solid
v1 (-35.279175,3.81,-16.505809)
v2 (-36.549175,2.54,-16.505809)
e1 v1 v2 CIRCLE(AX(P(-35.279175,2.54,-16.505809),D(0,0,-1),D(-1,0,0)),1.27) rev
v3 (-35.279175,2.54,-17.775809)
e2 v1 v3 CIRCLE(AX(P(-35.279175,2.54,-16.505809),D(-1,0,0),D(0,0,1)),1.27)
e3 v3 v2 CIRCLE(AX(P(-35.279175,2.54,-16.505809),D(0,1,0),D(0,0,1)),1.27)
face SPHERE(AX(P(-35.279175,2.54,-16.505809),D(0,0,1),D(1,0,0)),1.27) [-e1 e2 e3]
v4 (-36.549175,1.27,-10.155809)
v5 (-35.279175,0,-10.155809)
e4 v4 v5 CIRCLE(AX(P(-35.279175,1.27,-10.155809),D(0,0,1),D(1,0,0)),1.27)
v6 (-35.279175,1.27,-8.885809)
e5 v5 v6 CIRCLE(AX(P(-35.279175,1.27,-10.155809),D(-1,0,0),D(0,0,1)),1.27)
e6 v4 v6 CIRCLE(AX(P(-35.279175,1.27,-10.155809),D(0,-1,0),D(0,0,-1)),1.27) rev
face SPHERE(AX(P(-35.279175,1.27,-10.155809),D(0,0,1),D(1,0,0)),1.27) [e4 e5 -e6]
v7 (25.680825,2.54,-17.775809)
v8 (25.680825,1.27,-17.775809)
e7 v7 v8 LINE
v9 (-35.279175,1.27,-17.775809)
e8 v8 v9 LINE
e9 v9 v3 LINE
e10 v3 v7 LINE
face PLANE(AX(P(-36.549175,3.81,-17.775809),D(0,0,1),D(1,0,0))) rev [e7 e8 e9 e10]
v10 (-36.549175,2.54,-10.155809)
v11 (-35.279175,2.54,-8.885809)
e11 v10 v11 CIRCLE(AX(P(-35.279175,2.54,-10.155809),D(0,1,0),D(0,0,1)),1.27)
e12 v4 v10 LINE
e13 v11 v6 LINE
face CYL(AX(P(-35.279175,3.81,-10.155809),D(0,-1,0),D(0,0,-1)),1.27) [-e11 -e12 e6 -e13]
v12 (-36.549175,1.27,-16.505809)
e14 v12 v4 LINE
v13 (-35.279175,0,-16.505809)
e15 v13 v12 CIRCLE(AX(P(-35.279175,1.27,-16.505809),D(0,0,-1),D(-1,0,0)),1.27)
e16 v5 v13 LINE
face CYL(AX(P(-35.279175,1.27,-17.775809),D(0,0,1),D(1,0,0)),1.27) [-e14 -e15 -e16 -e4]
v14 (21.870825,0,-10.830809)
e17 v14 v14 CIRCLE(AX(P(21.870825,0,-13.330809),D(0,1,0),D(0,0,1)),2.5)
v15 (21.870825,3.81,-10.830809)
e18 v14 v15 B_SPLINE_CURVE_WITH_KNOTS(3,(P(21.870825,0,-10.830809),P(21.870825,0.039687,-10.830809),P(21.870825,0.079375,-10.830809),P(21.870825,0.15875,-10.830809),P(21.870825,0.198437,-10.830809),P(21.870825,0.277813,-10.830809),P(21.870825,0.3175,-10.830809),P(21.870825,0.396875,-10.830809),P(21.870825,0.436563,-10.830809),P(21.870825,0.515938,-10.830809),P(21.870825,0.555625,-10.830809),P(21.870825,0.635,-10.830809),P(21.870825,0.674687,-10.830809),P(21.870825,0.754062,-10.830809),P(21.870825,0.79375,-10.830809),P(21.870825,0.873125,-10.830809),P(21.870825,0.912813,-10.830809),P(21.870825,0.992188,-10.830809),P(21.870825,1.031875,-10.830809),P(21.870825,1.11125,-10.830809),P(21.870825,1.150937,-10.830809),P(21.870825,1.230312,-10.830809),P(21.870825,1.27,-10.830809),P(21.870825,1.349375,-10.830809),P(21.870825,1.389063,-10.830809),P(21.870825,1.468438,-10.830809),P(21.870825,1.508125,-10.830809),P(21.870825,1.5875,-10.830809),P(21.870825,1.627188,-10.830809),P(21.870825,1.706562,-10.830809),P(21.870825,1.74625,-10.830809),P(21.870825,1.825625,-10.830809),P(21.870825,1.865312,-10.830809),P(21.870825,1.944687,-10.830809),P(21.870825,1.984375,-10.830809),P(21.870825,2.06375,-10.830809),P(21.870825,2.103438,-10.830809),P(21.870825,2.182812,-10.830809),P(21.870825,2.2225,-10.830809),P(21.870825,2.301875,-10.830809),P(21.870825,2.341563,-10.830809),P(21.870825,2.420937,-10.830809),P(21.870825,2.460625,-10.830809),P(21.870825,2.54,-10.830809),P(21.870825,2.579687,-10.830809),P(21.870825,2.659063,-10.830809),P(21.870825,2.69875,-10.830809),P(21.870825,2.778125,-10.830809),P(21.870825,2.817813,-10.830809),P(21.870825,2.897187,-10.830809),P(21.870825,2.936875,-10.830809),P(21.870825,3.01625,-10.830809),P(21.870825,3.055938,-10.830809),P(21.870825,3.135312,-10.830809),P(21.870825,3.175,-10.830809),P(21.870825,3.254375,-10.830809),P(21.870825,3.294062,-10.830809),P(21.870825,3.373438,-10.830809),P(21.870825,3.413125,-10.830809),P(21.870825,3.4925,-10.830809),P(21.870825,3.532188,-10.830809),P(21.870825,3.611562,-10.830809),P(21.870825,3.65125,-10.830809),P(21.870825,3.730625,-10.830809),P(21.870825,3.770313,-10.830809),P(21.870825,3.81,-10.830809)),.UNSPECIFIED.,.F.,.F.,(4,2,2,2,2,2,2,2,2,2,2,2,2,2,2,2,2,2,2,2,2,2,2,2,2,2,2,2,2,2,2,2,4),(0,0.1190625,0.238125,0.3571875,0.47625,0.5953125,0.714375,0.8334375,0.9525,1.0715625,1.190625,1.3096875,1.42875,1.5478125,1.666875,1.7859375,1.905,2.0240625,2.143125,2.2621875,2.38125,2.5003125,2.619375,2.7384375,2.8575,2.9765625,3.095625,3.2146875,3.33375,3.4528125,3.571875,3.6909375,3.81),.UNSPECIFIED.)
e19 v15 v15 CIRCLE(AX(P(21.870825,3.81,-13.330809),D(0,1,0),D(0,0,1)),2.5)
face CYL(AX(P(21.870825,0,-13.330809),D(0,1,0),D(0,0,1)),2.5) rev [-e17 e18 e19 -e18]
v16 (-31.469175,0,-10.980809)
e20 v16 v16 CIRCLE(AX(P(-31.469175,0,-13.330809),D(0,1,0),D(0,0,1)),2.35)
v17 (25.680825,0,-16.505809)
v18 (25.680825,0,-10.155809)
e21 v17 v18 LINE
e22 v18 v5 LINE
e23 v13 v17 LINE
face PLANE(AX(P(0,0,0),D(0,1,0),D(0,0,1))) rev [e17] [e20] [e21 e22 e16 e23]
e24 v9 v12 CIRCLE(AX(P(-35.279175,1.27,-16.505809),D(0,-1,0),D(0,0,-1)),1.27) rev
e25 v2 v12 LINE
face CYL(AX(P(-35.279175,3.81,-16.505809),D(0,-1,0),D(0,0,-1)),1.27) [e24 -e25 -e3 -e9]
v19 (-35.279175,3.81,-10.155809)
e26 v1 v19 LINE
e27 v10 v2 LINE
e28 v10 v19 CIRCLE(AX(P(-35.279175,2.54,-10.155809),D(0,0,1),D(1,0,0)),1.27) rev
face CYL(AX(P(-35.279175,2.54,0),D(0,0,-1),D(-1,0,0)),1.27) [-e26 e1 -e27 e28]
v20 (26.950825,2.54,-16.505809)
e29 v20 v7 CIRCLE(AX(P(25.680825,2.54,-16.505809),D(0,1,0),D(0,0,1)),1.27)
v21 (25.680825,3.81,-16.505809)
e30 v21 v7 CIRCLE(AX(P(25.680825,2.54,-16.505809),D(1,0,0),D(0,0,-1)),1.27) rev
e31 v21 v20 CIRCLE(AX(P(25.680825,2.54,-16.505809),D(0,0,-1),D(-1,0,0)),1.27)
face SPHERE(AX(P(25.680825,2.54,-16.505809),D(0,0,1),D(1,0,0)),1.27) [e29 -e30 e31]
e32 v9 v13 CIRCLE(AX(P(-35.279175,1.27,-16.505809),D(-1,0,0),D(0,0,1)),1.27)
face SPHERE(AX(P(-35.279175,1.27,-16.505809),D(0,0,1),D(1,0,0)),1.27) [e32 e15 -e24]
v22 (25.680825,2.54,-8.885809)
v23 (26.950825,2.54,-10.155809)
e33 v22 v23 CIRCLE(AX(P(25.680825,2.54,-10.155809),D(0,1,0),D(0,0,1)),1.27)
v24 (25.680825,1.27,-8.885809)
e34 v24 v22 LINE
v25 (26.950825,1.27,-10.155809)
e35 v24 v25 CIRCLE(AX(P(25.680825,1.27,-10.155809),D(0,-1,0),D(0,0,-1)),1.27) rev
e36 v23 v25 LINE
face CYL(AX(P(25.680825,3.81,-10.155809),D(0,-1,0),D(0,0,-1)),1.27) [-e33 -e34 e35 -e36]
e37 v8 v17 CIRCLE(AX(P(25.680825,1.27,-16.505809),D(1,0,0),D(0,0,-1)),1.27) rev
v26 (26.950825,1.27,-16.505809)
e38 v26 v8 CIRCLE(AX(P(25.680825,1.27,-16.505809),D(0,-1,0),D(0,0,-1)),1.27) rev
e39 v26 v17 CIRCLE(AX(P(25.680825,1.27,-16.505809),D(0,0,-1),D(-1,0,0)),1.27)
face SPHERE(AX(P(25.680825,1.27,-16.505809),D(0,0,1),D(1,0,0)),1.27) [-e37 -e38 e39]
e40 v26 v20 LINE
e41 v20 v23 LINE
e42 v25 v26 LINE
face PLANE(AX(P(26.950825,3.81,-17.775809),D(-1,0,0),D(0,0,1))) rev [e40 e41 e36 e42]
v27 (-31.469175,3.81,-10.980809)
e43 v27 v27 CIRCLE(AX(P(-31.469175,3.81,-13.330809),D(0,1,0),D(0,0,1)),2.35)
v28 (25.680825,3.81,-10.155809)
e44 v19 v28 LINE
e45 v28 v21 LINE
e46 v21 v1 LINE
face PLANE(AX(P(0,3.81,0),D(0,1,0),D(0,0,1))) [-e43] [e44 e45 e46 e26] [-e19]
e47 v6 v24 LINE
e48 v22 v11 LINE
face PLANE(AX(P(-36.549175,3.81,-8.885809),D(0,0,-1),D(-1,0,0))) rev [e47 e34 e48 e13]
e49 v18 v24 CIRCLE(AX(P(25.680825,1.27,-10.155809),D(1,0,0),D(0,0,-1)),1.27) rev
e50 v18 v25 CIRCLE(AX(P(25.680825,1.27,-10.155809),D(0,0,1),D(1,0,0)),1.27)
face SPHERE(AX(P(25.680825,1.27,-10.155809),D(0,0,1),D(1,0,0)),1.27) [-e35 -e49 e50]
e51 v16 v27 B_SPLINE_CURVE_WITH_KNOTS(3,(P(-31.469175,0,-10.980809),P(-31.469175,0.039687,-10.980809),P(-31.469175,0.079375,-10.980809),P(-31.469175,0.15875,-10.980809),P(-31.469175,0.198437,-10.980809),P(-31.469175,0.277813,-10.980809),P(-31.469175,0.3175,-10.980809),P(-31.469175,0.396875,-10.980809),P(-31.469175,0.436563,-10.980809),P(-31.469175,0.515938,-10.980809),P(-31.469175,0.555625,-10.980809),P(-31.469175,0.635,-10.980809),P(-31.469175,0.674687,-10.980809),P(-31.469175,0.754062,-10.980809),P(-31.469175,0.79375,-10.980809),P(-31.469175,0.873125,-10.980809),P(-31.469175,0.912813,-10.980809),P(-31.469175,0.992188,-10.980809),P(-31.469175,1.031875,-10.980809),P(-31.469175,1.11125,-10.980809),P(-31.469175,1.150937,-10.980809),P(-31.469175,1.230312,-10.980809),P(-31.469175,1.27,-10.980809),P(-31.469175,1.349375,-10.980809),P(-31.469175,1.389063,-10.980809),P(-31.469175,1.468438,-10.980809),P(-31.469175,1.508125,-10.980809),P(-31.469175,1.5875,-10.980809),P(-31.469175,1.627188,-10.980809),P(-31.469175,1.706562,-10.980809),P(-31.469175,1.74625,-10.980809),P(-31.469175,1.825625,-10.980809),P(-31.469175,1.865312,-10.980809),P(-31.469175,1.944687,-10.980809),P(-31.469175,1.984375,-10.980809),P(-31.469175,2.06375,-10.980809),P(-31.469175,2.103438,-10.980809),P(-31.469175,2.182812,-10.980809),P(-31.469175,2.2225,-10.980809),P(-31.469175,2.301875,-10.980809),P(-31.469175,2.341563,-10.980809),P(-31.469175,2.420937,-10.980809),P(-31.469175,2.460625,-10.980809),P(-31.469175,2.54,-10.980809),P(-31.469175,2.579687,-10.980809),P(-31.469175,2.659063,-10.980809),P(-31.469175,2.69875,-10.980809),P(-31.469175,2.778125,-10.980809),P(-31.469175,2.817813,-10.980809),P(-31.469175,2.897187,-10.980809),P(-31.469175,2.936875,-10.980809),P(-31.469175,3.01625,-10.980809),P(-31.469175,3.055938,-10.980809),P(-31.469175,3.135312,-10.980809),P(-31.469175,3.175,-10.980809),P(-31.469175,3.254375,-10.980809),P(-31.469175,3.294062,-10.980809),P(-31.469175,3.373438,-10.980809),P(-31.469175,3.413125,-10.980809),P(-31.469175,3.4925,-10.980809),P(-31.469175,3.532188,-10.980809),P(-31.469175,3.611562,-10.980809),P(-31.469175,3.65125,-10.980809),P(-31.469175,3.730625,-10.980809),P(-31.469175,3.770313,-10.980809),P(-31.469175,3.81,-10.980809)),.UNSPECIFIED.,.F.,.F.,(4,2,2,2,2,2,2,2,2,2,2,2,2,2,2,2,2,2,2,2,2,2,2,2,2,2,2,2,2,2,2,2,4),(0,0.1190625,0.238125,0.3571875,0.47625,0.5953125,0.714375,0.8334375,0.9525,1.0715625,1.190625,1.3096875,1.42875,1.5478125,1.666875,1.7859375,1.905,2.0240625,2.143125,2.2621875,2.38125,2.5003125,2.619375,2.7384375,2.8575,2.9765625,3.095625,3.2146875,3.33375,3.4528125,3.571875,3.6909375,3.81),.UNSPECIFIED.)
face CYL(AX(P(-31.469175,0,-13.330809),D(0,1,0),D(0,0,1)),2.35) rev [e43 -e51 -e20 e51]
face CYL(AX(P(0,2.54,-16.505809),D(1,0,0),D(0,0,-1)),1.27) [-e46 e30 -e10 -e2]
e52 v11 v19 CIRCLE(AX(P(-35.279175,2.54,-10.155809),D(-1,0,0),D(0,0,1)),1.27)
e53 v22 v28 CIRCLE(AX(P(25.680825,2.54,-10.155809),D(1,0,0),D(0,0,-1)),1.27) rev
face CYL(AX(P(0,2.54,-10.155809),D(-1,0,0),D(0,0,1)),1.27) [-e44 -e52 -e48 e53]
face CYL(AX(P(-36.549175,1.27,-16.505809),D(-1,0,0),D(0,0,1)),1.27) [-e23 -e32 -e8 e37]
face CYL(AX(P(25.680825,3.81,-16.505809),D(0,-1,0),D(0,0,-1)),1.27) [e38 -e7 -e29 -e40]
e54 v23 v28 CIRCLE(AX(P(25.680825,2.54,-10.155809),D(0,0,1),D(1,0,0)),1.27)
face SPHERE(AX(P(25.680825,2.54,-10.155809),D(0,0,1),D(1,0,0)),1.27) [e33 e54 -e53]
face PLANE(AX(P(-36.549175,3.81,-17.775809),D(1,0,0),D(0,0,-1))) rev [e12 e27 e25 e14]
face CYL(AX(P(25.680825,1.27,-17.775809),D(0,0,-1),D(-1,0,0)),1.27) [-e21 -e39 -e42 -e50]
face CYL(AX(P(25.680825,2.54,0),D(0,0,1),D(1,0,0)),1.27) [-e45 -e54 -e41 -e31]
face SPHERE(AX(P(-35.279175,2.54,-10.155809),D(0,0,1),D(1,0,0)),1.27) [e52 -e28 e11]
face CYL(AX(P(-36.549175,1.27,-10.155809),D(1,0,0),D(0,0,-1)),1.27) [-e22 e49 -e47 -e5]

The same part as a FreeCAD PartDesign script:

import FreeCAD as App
import Part
import Sketcher
from FreeCAD import Vector
Q = App.Units.Quantity

doc = App.newDocument("Part")
params = doc.addObject("Spreadsheet::Sheet", "Params")
for row, (alias, value) in enumerate([
    ("sketch1_width", "2.5 in"),
    ("sketch1_height", "0.35 in"),
    ("pad1_length", "0.15 in"),
    ("fillet_radius", "0.05 in"),
], start=1):
    params.set(f"A{row}", alias)
    params.set(f"B{row}", "=" + value)
    params.setAlias(f"B{row}", alias)

body = doc.addObject("PartDesign::Body", "Body")

# Sketch on XZ plane
sketch1 = body.newObject("Sketcher::SketchObject", "Sketch")
sketch1.AttachmentSupport = (doc.getObject("XZ_Plane"), [""])
sketch1.MapMode = "FlatFace"
sketch1.addGeometry(Part.LineSegment(Vector(-37, -18, 0), Vector(-37, -9, 0)), False)
sketch1.addGeometry(Part.LineSegment(Vector(-37, -9, 0), Vector(27, -9, 0)), False)
sketch1.addGeometry(Part.LineSegment(Vector(27, -9, 0), Vector(27, -18, 0)), False)
sketch1.addGeometry(Part.LineSegment(Vector(27, -18, 0), Vector(-37, -18, 0)), False)
sketch1.addConstraint(Sketcher.Constraint("Coincident", 0, 2, 1, 1))
sketch1.addConstraint(Sketcher.Constraint("Coincident", 1, 2, 2, 1))
sketch1.addConstraint(Sketcher.Constraint("Coincident", 2, 2, 3, 1))
sketch1.addConstraint(Sketcher.Constraint("Coincident", 3, 2, 0, 1))
sketch1.addConstraint(Sketcher.Constraint("Vertical", 0))
sketch1.addConstraint(Sketcher.Constraint("Horizontal", 1))
sketch1.addConstraint(Sketcher.Constraint("Vertical", 2))
sketch1.addConstraint(Sketcher.Constraint("Horizontal", 3))
sketch1.addConstraint(Sketcher.Constraint("DistanceX", 1, 1, 1, 2, Q("2.5 in")))
sketch1.addConstraint(Sketcher.Constraint("DistanceY", 0, 1, 0, 2, Q("0.35 in")))
sketch1.addConstraint(Sketcher.Constraint("DistanceY", 0, 2, -1, 1, Q("8.885809 mm")))
sketch1.addConstraint(Sketcher.Constraint("DistanceX", 0, 2, -1, 1, Q("36.549175 mm")))
sketch1.setExpression("Constraints[8]", "Params.sketch1_width")
sketch1.setExpression("Constraints[9]", "Params.sketch1_height")
pad1 = body.newObject("PartDesign::Pad", "Pad")
pad1.Profile = sketch1
pad1.setExpression("Length", "Params.pad1_length")
pad1.Reversed = True
doc.recompute()

fillet = body.newObject("PartDesign::Fillet", "Fillet")
fillet.Base = (pad1, ["Edge1"])
fillet.UseAllEdges = True
fillet.setExpression("Radius", "Params.fillet_radius")

# Sketch on XZ plane
sketch2 = body.newObject("Sketcher::SketchObject", "Sketch001")
sketch2.AttachmentSupport = (doc.getObject("XZ_Plane"), [""])
sketch2.MapMode = "FlatFace"
sketch2.AttachmentOffset = App.Placement(Vector(0, 0, -0.15 * 25.4), App.Rotation())
sketch2.addGeometry(Part.Circle(Vector(-31.5, -13.3, 0), Vector(0, 0, 1), 2.4), False)
sketch2.addGeometry(Part.Circle(Vector(21.9, -13.3, 0), Vector(0, 0, 1), 2.5), False)
sketch2.addConstraint(Sketcher.Constraint("Horizontal", 0, 3, 1, 3))
sketch2.addConstraint(Sketcher.Constraint("DistanceX", 0, 3, 1, 3, Q("2.1 in")))
sketch2.addConstraint(Sketcher.Constraint("Diameter", 0, Q("4.7 mm")))
sketch2.addConstraint(Sketcher.Constraint("Diameter", 1, Q("5 mm")))
sketch2.addConstraint(Sketcher.Constraint("DistanceY", 0, 3, -1, 1, Q("13.330809 mm")))
sketch2.addConstraint(Sketcher.Constraint("DistanceX", 0, 3, -1, 1, Q("31.469175 mm")))
pocket1 = body.newObject("PartDesign::Pocket", "Pocket")
pocket1.Profile = sketch2
pocket1.Type = "ThroughAll"
pocket1.Reversed = True

doc.recompute()
